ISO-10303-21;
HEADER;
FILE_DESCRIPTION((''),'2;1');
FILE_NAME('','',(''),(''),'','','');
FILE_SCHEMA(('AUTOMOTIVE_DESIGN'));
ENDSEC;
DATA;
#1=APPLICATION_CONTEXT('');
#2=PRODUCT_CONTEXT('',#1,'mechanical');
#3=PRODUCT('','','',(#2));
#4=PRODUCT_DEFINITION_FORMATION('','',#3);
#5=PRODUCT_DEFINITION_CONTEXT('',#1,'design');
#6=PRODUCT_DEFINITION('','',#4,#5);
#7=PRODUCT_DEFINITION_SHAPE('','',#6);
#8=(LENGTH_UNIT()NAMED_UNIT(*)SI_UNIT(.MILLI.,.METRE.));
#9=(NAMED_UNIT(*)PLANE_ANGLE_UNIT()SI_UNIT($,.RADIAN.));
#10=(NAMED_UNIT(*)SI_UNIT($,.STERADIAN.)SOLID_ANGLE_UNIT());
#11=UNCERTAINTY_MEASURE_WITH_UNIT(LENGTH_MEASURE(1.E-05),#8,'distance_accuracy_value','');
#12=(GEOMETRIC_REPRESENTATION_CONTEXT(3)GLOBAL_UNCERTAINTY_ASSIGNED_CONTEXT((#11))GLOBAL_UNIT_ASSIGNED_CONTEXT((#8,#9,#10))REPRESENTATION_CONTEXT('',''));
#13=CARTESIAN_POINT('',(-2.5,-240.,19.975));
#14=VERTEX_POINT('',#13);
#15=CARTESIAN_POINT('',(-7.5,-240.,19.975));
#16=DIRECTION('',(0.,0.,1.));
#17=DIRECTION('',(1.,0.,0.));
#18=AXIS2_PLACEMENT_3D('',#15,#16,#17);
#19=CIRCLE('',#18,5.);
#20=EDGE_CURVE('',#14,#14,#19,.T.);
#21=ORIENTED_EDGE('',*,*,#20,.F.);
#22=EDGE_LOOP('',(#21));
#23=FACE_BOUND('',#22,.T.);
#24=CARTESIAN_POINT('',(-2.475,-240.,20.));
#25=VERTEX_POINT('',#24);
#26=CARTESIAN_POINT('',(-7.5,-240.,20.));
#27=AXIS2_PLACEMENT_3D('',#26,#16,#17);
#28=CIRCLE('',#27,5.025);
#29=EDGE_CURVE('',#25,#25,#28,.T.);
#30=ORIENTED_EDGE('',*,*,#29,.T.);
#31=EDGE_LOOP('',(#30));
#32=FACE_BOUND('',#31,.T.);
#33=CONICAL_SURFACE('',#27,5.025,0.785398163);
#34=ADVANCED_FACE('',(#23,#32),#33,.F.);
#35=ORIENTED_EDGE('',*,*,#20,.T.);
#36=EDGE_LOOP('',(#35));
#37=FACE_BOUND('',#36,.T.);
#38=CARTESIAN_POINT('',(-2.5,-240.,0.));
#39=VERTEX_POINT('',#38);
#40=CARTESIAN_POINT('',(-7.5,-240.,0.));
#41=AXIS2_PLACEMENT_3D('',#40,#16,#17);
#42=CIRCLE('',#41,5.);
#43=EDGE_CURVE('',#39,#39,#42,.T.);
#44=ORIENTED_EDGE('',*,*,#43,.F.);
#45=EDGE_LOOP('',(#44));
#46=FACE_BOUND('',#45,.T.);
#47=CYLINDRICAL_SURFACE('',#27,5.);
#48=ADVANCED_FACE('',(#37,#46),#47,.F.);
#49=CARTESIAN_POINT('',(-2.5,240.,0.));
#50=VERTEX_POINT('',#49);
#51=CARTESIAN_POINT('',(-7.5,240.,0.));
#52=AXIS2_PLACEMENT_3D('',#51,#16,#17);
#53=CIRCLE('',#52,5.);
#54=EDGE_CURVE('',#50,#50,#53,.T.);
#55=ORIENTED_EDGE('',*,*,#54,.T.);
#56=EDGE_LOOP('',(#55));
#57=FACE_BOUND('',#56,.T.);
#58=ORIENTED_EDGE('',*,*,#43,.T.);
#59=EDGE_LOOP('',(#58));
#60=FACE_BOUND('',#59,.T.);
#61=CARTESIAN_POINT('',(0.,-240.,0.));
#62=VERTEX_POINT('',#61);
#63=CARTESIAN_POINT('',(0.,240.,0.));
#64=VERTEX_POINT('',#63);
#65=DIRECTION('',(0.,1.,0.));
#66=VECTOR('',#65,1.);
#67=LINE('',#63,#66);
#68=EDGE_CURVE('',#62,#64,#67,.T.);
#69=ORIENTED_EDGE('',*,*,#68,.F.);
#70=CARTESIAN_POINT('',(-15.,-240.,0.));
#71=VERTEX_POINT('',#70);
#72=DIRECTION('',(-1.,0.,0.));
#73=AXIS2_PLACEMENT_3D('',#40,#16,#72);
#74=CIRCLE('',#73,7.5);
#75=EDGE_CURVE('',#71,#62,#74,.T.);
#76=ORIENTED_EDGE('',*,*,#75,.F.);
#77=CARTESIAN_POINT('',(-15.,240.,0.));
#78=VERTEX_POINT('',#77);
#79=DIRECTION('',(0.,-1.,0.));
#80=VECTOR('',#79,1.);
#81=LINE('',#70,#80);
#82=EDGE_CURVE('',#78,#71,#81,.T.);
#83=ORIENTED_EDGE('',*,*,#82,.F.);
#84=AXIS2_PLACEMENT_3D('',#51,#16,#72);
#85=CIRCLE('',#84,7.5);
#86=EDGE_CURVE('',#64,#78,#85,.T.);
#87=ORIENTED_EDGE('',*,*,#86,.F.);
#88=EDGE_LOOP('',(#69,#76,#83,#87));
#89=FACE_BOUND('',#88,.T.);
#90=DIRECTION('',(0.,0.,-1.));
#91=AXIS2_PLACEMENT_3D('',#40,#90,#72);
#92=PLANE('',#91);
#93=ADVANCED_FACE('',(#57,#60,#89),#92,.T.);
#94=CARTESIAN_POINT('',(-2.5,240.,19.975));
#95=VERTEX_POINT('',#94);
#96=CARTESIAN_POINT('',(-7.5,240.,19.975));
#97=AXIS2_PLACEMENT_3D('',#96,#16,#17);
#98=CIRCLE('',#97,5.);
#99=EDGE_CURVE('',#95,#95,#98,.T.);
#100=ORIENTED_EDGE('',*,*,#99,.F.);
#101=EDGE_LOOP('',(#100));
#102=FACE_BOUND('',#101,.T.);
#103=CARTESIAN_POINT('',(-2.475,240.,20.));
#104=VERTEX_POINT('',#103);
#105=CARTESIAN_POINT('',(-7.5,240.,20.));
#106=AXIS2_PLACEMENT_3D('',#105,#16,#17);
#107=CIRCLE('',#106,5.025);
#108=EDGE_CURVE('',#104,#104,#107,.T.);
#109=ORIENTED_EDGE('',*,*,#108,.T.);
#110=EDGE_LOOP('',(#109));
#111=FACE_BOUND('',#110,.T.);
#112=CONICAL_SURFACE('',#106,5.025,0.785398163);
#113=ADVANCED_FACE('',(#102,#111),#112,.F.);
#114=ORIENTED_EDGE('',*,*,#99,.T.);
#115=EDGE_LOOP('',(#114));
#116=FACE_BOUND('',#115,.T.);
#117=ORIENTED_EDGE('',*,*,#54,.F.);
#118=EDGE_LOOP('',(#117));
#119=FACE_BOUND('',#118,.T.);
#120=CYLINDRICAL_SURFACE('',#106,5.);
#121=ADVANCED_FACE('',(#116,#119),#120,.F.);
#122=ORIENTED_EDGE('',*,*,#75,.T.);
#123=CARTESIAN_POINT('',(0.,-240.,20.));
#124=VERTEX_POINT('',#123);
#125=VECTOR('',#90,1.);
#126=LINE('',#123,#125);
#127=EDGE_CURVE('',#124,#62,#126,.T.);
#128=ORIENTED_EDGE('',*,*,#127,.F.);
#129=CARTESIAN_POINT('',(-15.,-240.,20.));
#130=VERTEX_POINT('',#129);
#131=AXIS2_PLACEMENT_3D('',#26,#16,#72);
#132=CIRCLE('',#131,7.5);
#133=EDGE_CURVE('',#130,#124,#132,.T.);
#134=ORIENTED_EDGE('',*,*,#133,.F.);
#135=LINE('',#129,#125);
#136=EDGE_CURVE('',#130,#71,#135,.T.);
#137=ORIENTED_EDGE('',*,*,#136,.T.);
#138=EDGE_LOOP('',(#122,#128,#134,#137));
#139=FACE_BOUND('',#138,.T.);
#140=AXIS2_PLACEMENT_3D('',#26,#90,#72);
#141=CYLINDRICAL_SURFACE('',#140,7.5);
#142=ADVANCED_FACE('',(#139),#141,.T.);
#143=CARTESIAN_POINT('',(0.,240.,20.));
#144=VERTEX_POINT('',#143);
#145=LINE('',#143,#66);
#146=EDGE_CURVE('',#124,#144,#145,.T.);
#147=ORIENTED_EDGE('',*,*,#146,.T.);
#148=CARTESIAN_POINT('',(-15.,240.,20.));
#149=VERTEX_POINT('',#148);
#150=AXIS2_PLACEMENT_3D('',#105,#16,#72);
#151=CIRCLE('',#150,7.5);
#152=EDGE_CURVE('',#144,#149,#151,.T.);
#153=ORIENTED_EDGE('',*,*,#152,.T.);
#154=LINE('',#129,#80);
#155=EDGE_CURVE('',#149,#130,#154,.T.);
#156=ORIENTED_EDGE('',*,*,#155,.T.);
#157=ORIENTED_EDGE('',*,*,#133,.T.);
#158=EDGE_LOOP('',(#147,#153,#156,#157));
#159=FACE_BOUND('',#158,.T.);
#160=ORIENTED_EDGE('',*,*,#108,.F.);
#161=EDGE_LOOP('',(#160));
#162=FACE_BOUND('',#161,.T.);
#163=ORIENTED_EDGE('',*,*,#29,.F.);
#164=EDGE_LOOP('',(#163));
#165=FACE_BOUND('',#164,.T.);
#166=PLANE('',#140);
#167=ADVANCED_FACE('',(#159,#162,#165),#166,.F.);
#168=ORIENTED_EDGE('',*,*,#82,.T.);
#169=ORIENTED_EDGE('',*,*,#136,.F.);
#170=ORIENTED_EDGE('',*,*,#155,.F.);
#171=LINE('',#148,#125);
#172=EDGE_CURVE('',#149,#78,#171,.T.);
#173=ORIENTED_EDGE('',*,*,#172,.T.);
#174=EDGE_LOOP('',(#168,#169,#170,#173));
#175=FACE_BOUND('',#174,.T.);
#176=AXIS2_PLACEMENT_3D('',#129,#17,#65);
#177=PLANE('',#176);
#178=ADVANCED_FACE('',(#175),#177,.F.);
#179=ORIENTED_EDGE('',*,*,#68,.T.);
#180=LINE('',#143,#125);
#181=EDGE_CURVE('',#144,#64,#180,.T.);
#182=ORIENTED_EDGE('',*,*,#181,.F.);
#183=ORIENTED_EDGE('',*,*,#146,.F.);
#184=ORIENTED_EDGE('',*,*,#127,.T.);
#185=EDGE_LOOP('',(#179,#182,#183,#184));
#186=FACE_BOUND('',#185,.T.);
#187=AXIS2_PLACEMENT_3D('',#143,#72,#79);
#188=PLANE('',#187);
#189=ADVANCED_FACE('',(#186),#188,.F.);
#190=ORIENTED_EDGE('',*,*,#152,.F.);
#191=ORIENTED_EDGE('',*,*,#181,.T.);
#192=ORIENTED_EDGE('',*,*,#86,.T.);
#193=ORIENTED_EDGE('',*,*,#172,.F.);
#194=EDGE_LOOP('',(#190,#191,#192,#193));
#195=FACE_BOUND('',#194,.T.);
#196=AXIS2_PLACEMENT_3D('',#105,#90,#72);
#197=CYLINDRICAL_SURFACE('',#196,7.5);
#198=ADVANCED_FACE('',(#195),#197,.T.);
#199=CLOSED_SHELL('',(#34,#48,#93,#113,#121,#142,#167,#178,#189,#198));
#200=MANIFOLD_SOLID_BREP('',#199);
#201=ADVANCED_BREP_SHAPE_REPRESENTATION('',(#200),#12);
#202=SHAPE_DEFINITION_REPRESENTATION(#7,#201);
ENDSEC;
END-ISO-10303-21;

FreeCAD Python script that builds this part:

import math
import FreeCAD as App
import Part
import Sketcher
from FreeCAD import Vector
Q = App.Units.Quantity

doc = App.newDocument("Part")
body = doc.addObject("PartDesign::Body", "Body")

# Sketch on XY plane
sketch1 = body.newObject("Sketcher::SketchObject", "Sketch")
sketch1.AttachmentSupport = (doc.getObject("XY_Plane"), [""])
sketch1.MapMode = "FlatFace"
sketch1.addGeometry([
    Part.LineSegment(Vector(-15, 240, 0), Vector(-15, -240, 0)),
    Part.ArcOfCircle(Part.Circle(Vector(-8, -240, 0), Vector(0, 0, 1), 8), math.radians(180), math.radians(360)),
    Part.LineSegment(Vector(0, -240, 0), Vector(0, 240, 0)),
    Part.ArcOfCircle(Part.Circle(Vector(-8, 240, 0), Vector(0, 0, 1), 8), math.radians(0), math.radians(180)),
], False)
sketch1.addConstraint([
    Sketcher.Constraint("Tangent", 0, 2, 1, 1),
    Sketcher.Constraint("Tangent", 1, 2, 2, 1),
    Sketcher.Constraint("Tangent", 2, 2, 3, 1),
    Sketcher.Constraint("Tangent", 3, 2, 0, 1),
    Sketcher.Constraint("Vertical", 0),
    Sketcher.Constraint("Vertical", 2),
    Sketcher.Constraint("Symmetric", 1, 2, 2, 2, -1, 1),
    Sketcher.Constraint("Radius", 1, Q("7.5 mm")),
    Sketcher.Constraint("DistanceY", 0, 2, 0, 1, Q("480 mm")),
])
pad1 = body.newObject("PartDesign::Pad", "Pad")
pad1.Profile = sketch1
pad1.Length = 20

# Sketch on XY plane
sketch2 = body.newObject("Sketcher::SketchObject", "Sketch001")
sketch2.AttachmentSupport = (doc.getObject("XY_Plane"), [""])
sketch2.MapMode = "FlatFace"
sketch2.AttachmentOffset = App.Placement(Vector(0, 0, 20), App.Rotation())
sketch2.addGeometry([
    Part.Circle(Vector(-8, 240, 0), Vector(0, 0, 1), 5),
    Part.Circle(Vector(-8, -240, 0), Vector(0, 0, 1), 5),
], False)
sketch2.addConstraint([
    Sketcher.Constraint("Equal", 0, 1),
    Sketcher.Constraint("Symmetric", 0, 3, 1, 3, -1),
    Sketcher.Constraint("Diameter", 0, Q("10 mm")),
    Sketcher.Constraint("DistanceY", -1, 1, 0, 3, Q("240 mm")),
    Sketcher.Constraint("DistanceX", 0, 3, -1, 1, Q("7.5 mm")),
])
doc.recompute()
hole = body.newObject("PartDesign::Hole", "Hole")
hole.Profile = sketch2
hole.ThreadType = "None"
hole.Diameter = 10
hole.DepthType = "ThroughAll"
hole.HoleCutType = "Countersink"
hole.HoleCutDiameter = 10.05
hole.HoleCutCountersinkAngle = 90

doc.recompute()
